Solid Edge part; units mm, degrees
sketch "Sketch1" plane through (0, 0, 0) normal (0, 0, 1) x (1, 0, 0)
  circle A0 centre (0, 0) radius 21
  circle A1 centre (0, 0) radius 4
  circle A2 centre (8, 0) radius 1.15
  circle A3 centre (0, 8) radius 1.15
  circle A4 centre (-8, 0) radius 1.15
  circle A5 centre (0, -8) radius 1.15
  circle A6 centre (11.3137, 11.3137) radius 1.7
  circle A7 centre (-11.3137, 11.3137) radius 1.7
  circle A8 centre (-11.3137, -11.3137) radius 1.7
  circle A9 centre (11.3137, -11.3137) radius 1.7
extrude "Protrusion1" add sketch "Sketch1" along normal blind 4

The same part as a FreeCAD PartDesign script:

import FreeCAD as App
import Part
import Sketcher
from FreeCAD import Vector

doc = App.newDocument("Part")
body = doc.addObject("PartDesign::Body", "Body")

sketch1 = doc.addObject("Sketcher::SketchObject", "Sketch")
body.addObject(sketch1)
sketch1.AttachmentSupport = (doc.XY_Plane, [""])
sketch1.MapMode = "FlatFace"
sketch1.addGeometry([
    Part.Circle(Vector(0, 0, 0), Vector(0, 0, 1), 21),
    Part.Circle(Vector(-11.3, -11.3, 0), Vector(0, 0, 1), 1.7),
    Part.Circle(Vector(11.3, -11.3, 0), Vector(0, 0, 1), 1.7),
    Part.Circle(Vector(0, -8, 0), Vector(0, 0, 1), 1.1),
    Part.Circle(Vector(-8, 0, 0), Vector(0, 0, 1), 1.1),
    Part.Circle(Vector(-11.3, 11.3, 0), Vector(0, 0, 1), 1.7),
    Part.Circle(Vector(0, 0, 0), Vector(0, 0, 1), 4),
    Part.Circle(Vector(8, 0, 0), Vector(0, 0, 1), 1.1),
    Part.Circle(Vector(0, 8, 0), Vector(0, 0, 1), 1.1),
    Part.Circle(Vector(11.3, 11.3, 0), Vector(0, 0, 1), 1.7),
], False)
sketch1.addConstraint([
    Sketcher.Constraint("Coincident", 0, 3, -1, 1),
    Sketcher.Constraint("Coincident", 6, 3, -1, 1),
    Sketcher.Constraint("Equal", 1, 2),
    Sketcher.Constraint("Equal", 3, 4),
    Sketcher.Constraint("Equal", 2, 5),
    Sketcher.Constraint("Equal", 4, 7),
    Sketcher.Constraint("Equal", 7, 8),
    Sketcher.Constraint("Equal", 5, 9),
    Sketcher.Constraint("Symmetric", 2, 3, 5, 3, -1, 1),
    Sketcher.Constraint("Symmetric", 4, 3, 7, 3, -1, 1),
    Sketcher.Constraint("Symmetric", 3, 3, 8, 3, -1, 1),
    Sketcher.Constraint("Symmetric", 1, 3, 9, 3, -1, 1),
    Sketcher.Constraint("Symmetric", 1, 3, 2, 3, -2),
    Sketcher.Constraint("PointOnObject", 3, 3, -2),
    Sketcher.Constraint("PointOnObject", 4, 3, -1),
    Sketcher.Constraint("Diameter", 0, 42.0),
    Sketcher.Constraint("Diameter", 6, 8.0),
    Sketcher.Constraint("Diameter", 1, 3.4),
    Sketcher.Constraint("Diameter", 3, 2.3),
    Sketcher.Constraint("DistanceY", 3, 3, -1, 1, 8.0),
    Sketcher.Constraint("DistanceX", 4, 3, -1, 1, 8.0),
    Sketcher.Constraint("DistanceX", 1, 3, -1, 1, 11.3137),
    Sketcher.Constraint("DistanceY", 1, 3, -1, 1, 11.3137),
])
pad1 = doc.addObject("PartDesign::Pad", "Pad")
body.addObject(pad1)
pad1.Profile = sketch1
pad1.Length = 4

doc.recompute()
